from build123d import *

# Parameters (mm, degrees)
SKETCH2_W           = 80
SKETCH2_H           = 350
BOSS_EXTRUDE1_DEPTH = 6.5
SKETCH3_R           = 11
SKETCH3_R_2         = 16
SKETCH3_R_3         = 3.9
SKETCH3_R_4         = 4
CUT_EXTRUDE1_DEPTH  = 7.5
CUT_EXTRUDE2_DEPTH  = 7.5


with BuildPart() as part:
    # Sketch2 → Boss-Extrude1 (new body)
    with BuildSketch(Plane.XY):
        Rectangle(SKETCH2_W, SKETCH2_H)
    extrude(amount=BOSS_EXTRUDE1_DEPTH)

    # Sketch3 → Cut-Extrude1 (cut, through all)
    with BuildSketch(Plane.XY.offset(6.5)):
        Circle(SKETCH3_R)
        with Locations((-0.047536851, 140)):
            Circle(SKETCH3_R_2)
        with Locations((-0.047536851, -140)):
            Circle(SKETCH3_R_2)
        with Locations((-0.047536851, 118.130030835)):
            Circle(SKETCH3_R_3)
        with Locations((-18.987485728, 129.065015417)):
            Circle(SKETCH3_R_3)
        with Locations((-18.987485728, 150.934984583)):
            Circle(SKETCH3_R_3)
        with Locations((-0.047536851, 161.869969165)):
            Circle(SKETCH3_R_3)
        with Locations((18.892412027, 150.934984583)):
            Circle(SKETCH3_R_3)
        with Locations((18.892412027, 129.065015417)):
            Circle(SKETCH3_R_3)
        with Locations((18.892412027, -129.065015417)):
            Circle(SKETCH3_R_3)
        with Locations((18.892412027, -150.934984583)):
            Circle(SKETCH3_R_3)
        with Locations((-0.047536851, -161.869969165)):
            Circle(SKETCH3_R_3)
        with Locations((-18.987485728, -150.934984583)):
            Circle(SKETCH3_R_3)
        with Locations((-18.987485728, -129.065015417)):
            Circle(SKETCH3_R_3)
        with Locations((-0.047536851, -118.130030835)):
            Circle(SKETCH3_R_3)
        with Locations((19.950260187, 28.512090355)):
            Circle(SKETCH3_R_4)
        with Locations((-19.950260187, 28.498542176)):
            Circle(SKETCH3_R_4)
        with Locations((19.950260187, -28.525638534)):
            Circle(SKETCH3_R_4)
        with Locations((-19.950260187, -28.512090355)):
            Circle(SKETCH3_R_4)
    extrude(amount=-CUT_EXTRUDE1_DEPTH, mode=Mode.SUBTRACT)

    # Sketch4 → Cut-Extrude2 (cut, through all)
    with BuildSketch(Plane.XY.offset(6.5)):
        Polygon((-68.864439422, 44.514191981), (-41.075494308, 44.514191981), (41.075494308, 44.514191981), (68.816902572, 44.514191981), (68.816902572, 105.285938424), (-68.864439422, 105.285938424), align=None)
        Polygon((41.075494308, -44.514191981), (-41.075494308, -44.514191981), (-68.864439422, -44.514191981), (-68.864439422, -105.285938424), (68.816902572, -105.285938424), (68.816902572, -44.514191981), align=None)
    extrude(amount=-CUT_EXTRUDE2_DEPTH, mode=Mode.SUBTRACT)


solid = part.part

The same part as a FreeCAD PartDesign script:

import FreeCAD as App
import Part
import Sketcher


def add_polygon(sketch, points):
    """Adds a closed chain of lines whose ends are joined by coincident constraints."""
    first, n = sketch.GeometryCount, len(points)
    for a, b in zip(points, points[1:] + points[:1]):
        sketch.addGeometry(Part.LineSegment(App.Vector(*a, 0), App.Vector(*b, 0)), False)
    for i in range(n):
        sketch.addConstraint(Sketcher.Constraint("Coincident", first + i, 2, first + (i + 1) % n, 1))

doc = App.newDocument("Part")
body = doc.addObject("PartDesign::Body", "Body")
body.AllowCompound = True

sketch1 = body.newObject("Sketcher::SketchObject", "Sketch")
sketch1.AttachmentSupport = (doc.getObject("XY_Plane"), [""])
sketch1.MapMode = "FlatFace"
add_polygon(sketch1, [(-40, 175), (-40, -175), (40, -175), (40, 175)])
sketch1.addConstraint(Sketcher.Constraint("Vertical", 0))
sketch1.addConstraint(Sketcher.Constraint("Horizontal", 1))
sketch1.addConstraint(Sketcher.Constraint("Vertical", 2))
sketch1.addConstraint(Sketcher.Constraint("Horizontal", 3))
sketch1.addConstraint(Sketcher.Constraint("Symmetric", 0, 2, 2, 2, -1, 1))
sketch1.addConstraint(Sketcher.Constraint("DistanceX", 1, 1, 1, 2, 80.0))
sketch1.addConstraint(Sketcher.Constraint("DistanceY", 0, 2, 0, 1, 350.0))
pad1 = body.newObject("PartDesign::Pad", "Pad")
pad1.Profile = sketch1
pad1.Length = 6.5

sketch2 = body.newObject("Sketcher::SketchObject", "Sketch001")
sketch2.AttachmentSupport = (doc.getObject("XY_Plane"), [""])
sketch2.MapMode = "FlatFace"
sketch2.AttachmentOffset = App.Placement(App.Vector(0, 0, 6.5), App.Rotation())
sketch2.addGeometry(Part.Circle(App.Vector(0, 0, 0), App.Vector(0, 0, 1), 11), False)
sketch2.addGeometry(Part.Circle(App.Vector(0, 140, 0), App.Vector(0, 0, 1), 16), False)
sketch2.addGeometry(Part.Circle(App.Vector(0, -140, 0), App.Vector(0, 0, 1), 16), False)
sketch2.addGeometry(Part.Circle(App.Vector(0, 118.1, 0), App.Vector(0, 0, 1), 3.9), False)
sketch2.addGeometry(Part.Circle(App.Vector(-19, 129.1, 0), App.Vector(0, 0, 1), 3.9), False)
sketch2.addGeometry(Part.Circle(App.Vector(-19, 150.9, 0), App.Vector(0, 0, 1), 3.9), False)
sketch2.addGeometry(Part.Circle(App.Vector(0, 161.9, 0), App.Vector(0, 0, 1), 3.9), False)
sketch2.addGeometry(Part.Circle(App.Vector(18.9, 150.9, 0), App.Vector(0, 0, 1), 3.9), False)
sketch2.addGeometry(Part.Circle(App.Vector(18.9, 129.1, 0), App.Vector(0, 0, 1), 3.9), False)
sketch2.addGeometry(Part.Circle(App.Vector(18.9, -129.1, 0), App.Vector(0, 0, 1), 3.9), False)
sketch2.addGeometry(Part.Circle(App.Vector(18.9, -150.9, 0), App.Vector(0, 0, 1), 3.9), False)
sketch2.addGeometry(Part.Circle(App.Vector(0, -161.9, 0), App.Vector(0, 0, 1), 3.9), False)
sketch2.addGeometry(Part.Circle(App.Vector(-19, -150.9, 0), App.Vector(0, 0, 1), 3.9), False)
sketch2.addGeometry(Part.Circle(App.Vector(-19, -129.1, 0), App.Vector(0, 0, 1), 3.9), False)
sketch2.addGeometry(Part.Circle(App.Vector(0, -118.1, 0), App.Vector(0, 0, 1), 3.9), False)
sketch2.addGeometry(Part.Circle(App.Vector(20, 28.5, 0), App.Vector(0, 0, 1), 4), False)
sketch2.addGeometry(Part.Circle(App.Vector(-20, 28.5, 0), App.Vector(0, 0, 1), 4), False)
sketch2.addGeometry(Part.Circle(App.Vector(20, -28.5, 0), App.Vector(0, 0, 1), 4), False)
sketch2.addGeometry(Part.Circle(App.Vector(-20, -28.5, 0), App.Vector(0, 0, 1), 4), False)
sketch2.addConstraint(Sketcher.Constraint("Coincident", 0, 3, -1, 1))
sketch2.addConstraint(Sketcher.Constraint("Equal", 1, 2))
sketch2.addConstraint(Sketcher.Constraint("Equal", 3, 4))
sketch2.addConstraint(Sketcher.Constraint("Equal", 4, 5))
sketch2.addConstraint(Sketcher.Constraint("Equal", 5, 6))
sketch2.addConstraint(Sketcher.Constraint("Equal", 6, 7))
sketch2.addConstraint(Sketcher.Constraint("Equal", 7, 8))
sketch2.addConstraint(Sketcher.Constraint("Equal", 8, 9))
sketch2.addConstraint(Sketcher.Constraint("Equal", 9, 10))
sketch2.addConstraint(Sketcher.Constraint("Equal", 10, 11))
sketch2.addConstraint(Sketcher.Constraint("Equal", 11, 12))
sketch2.addConstraint(Sketcher.Constraint("Equal", 12, 13))
sketch2.addConstraint(Sketcher.Constraint("Equal", 13, 14))
sketch2.addConstraint(Sketcher.Constraint("Equal", 15, 16))
sketch2.addConstraint(Sketcher.Constraint("Equal", 16, 17))
sketch2.addConstraint(Sketcher.Constraint("Equal", 17, 18))
sketch2.addConstraint(Sketcher.Constraint("Symmetric", 15, 3, 18, 3, -1, 1))
sketch2.addConstraint(Sketcher.Constraint("Symmetric", 1, 3, 2, 3, -1))
sketch2.addConstraint(Sketcher.Constraint("Symmetric", 8, 3, 9, 3, -1))
sketch2.addConstraint(Sketcher.Constraint("Symmetric", 7, 3, 10, 3, -1))
sketch2.addConstraint(Sketcher.Constraint("Symmetric", 6, 3, 11, 3, -1))
sketch2.addConstraint(Sketcher.Constraint("Symmetric", 5, 3, 12, 3, -1))
sketch2.addConstraint(Sketcher.Constraint("Symmetric", 4, 3, 13, 3, -1))
sketch2.addConstraint(Sketcher.Constraint("Symmetric", 3, 3, 14, 3, -1))
sketch2.addConstraint(Sketcher.Constraint("Horizontal", 5, 3, 7, 3))
sketch2.addConstraint(Sketcher.Constraint("Horizontal", 4, 3, 8, 3))
sketch2.addConstraint(Sketcher.Constraint("Vertical", 2, 3, 3, 3))
sketch2.addConstraint(Sketcher.Constraint("Vertical", 4, 3, 5, 3))
sketch2.addConstraint(Sketcher.Constraint("Vertical", 3, 3, 6, 3))
sketch2.addConstraint(Sketcher.Constraint("Vertical", 7, 3, 8, 3))
sketch2.addConstraint(Sketcher.Constraint("Vertical", 15, 3, 17, 3))
sketch2.addConstraint(Sketcher.Constraint("Vertical", 16, 3, 18, 3))
sketch2.addConstraint(Sketcher.Constraint("Diameter", 0, 22.0))
sketch2.addConstraint(Sketcher.Constraint("Diameter", 1, 32.0))
sketch2.addConstraint(Sketcher.Constraint("Diameter", 15, 8.0))
sketch2.addConstraint(Sketcher.Constraint("Diameter", 3, 7.8))
sketch2.addConstraint(Sketcher.Constraint("DistanceY", -1, 1, 1, 3, 140.0))
sketch2.addConstraint(Sketcher.Constraint("DistanceY", 10, 3, 8, 3, 280.0))
sketch2.addConstraint(Sketcher.Constraint("DistanceY", 11, 3, 3, 3, 280.0))
sketch2.addConstraint(Sketcher.Constraint("DistanceY", -1, 1, 3, 3, 118.130031))
sketch2.addConstraint(Sketcher.Constraint("DistanceX", -1, 1, 15, 3, 19.95026))
sketch2.addConstraint(Sketcher.Constraint("DistanceY", -1, 1, 15, 3, 28.51209))
sketch2.addConstraint(Sketcher.Constraint("DistanceY", 17, 3, -1, 1, 28.525639))
sketch2.addConstraint(Sketcher.Constraint("DistanceX", 4, 3, 3, 3, 18.939949))
sketch2.addConstraint(Sketcher.Constraint("DistanceY", 4, 3, 5, 3, 21.869969))
sketch2.addConstraint(Sketcher.Constraint("DistanceX", 6, 3, 7, 3, 18.939949))
sketch2.addConstraint(Sketcher.Constraint("DistanceX", 8, 3, 15, 3, 1.057848))
sketch2.addConstraint(Sketcher.Constraint("DistanceY", 16, 3, 15, 3, 0.013548))
pocket1 = body.newObject("PartDesign::Pocket", "Pocket")
pocket1.Profile = sketch2
pocket1.Type = "ThroughAll"

sketch3 = body.newObject("Sketcher::SketchObject", "Sketch002")
sketch3.AttachmentSupport = (doc.getObject("XY_Plane"), [""])
sketch3.MapMode = "FlatFace"
sketch3.AttachmentOffset = App.Placement(App.Vector(0, 0, 6.5), App.Rotation())
add_polygon(sketch3, [(-69, 45), (69, 45), (69, 105), (-69, 105)])
add_polygon(sketch3, [(-69, -45), (-69, -105), (69, -105), (69, -45)])
sketch3.addConstraint(Sketcher.Constraint("Horizontal", 0))
sketch3.addConstraint(Sketcher.Constraint("Vertical", 1))
sketch3.addConstraint(Sketcher.Constraint("Horizontal", 2))
sketch3.addConstraint(Sketcher.Constraint("Vertical", 3))
sketch3.addConstraint(Sketcher.Constraint("Vertical", 4))
sketch3.addConstraint(Sketcher.Constraint("Horizontal", 5))
sketch3.addConstraint(Sketcher.Constraint("Vertical", 6))
sketch3.addConstraint(Sketcher.Constraint("Horizontal", 7))
sketch3.addConstraint(Sketcher.Constraint("Symmetric", 2, 2, 4, 2, -1))
sketch3.addConstraint(Sketcher.Constraint("Symmetric", 0, 2, 6, 2, -1))
sketch3.addConstraint(Sketcher.Constraint("DistanceX", 0, 1, 0, 2, 137.681342))
sketch3.addConstraint(Sketcher.Constraint("DistanceY", 1, 1, 1, 2, 60.771746))
sketch3.addConstraint(Sketcher.Constraint("DistanceY", -1, 1, 0, 2, 44.514192))
sketch3.addConstraint(Sketcher.Constraint("DistanceX", 2, 2, -1, 1, 68.864439))
pocket2 = body.newObject("PartDesign::Pocket", "Pocket001")
pocket2.Profile = sketch3
pocket2.Type = "ThroughAll"

doc.recompute()
